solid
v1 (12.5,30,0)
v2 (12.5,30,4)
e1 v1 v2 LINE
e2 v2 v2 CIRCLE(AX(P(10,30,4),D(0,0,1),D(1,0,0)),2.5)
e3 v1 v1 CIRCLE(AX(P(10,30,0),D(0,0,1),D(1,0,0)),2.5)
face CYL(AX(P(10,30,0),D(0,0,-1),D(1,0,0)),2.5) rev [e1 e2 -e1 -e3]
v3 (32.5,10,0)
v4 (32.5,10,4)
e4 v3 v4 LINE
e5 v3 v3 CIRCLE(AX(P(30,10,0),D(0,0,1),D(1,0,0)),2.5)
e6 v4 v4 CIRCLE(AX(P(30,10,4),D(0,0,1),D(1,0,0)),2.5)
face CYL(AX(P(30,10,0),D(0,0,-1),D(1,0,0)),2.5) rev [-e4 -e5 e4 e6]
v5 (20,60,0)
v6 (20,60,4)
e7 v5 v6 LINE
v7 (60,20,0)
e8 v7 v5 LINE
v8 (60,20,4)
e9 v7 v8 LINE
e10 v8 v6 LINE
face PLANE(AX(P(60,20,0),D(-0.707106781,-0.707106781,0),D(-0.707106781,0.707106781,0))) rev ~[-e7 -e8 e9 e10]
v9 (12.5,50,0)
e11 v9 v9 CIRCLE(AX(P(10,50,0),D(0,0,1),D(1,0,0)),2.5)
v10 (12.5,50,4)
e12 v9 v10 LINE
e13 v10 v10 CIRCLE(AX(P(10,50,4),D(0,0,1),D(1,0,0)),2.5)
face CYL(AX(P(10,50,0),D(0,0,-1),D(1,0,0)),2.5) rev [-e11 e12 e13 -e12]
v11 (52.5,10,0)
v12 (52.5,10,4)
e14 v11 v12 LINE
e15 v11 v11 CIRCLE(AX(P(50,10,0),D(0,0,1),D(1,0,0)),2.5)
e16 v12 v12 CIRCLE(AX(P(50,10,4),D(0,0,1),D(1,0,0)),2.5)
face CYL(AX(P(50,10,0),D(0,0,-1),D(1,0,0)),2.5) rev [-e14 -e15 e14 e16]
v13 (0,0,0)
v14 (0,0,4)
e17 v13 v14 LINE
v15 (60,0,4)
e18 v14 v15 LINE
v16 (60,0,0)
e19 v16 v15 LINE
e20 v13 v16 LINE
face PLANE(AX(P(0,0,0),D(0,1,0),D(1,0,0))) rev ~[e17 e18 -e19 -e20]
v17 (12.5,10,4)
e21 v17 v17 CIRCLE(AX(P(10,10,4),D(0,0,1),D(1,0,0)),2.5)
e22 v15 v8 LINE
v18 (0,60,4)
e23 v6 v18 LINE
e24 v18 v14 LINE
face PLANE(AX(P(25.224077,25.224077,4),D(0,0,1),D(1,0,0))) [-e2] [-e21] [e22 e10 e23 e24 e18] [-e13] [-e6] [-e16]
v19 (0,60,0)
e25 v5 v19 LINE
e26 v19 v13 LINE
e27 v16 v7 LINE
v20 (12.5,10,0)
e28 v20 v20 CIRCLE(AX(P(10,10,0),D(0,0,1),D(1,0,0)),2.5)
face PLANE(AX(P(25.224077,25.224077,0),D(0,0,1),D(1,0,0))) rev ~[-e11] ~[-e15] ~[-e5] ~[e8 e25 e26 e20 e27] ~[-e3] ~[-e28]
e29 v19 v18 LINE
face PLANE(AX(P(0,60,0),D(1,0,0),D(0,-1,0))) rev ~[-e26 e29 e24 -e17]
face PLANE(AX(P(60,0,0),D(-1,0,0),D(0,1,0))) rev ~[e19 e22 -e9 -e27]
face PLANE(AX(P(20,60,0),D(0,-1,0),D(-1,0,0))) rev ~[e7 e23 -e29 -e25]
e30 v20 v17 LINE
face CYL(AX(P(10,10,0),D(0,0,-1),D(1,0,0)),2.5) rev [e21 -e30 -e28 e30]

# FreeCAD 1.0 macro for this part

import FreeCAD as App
import Part
import Sketcher
from FreeCAD import Vector
Q = App.Units.Quantity


def add_polygon(sketch, points):
    """Adds a closed chain of lines whose ends are joined by coincident constraints."""
    first, n = sketch.GeometryCount, len(points)
    for a, b in zip(points, points[1:] + points[:1]):
        sketch.addGeometry(Part.LineSegment(App.Vector(*a, 0), App.Vector(*b, 0)), False)
    for i in range(n):
        sketch.addConstraint(Sketcher.Constraint("Coincident", first + i, 2, first + (i + 1) % n, 1))

doc = App.newDocument("Part")
body = doc.addObject("PartDesign::Body", "Body")

sketch1 = body.newObject("Sketcher::SketchObject", "Sketch")
sketch1.AttachmentSupport = (doc.getObject("XY_Plane"), [""])
sketch1.MapMode = "FlatFace"
add_polygon(sketch1, [(0, 60), (0, 0), (60, 0), (60, 20), (20, 60)])
sketch1.addGeometry(Part.Circle(Vector(10, 10, 0), Vector(0, 0, 1), 2.5), False)
sketch1.addGeometry(Part.Circle(Vector(30, 10, 0), Vector(0, 0, 1), 2.5), False)
sketch1.addGeometry(Part.Circle(Vector(50, 10, 0), Vector(0, 0, 1), 2.5), False)
sketch1.addGeometry(Part.Circle(Vector(10, 30, 0), Vector(0, 0, 1), 2.5), False)
sketch1.addGeometry(Part.Circle(Vector(10, 50, 0), Vector(0, 0, 1), 2.5), False)
sketch1.addConstraint([
    Sketcher.Constraint("Vertical", 0),
    Sketcher.Constraint("Horizontal", 1),
    Sketcher.Constraint("Vertical", 2),
    Sketcher.Constraint("Horizontal", 4),
    Sketcher.Constraint("Coincident", 0, 2, -1, 1),
    Sketcher.Constraint("Equal", 5, 6),
    Sketcher.Constraint("Equal", 6, 7),
    Sketcher.Constraint("Equal", 7, 8),
    Sketcher.Constraint("Equal", 8, 9),
    Sketcher.Constraint("Horizontal", 5, 3, 6, 3),
    Sketcher.Constraint("Horizontal", 6, 3, 7, 3),
    Sketcher.Constraint("Vertical", 5, 3, 8, 3),
    Sketcher.Constraint("Vertical", 8, 3, 9, 3),
    Sketcher.Constraint("Equal", 1, 0),
    Sketcher.Constraint("Equal", 4, 2),
    Sketcher.Constraint("Diameter", 5, Q("5 mm")),
    Sketcher.Constraint("DistanceX", 1, 1, 1, 2, Q("60 mm")),
    Sketcher.Constraint("DistanceX", 4, 2, 4, 1, Q("20 mm")),
    Sketcher.Constraint("DistanceX", -1, 1, 5, 3, Q("10 mm")),
    Sketcher.Constraint("DistanceY", -1, 1, 5, 3, Q("10 mm")),
    Sketcher.Constraint("DistanceX", -1, 1, 6, 3, Q("30 mm")),
    Sketcher.Constraint("DistanceX", -1, 1, 7, 3, Q("50 mm")),
    Sketcher.Constraint("DistanceY", -1, 1, 8, 3, Q("30 mm")),
    Sketcher.Constraint("DistanceY", -1, 1, 9, 3, Q("50 mm")),
])
pad1 = body.newObject("PartDesign::Pad", "Pad")
pad1.Profile = sketch1
pad1.Length = 4

doc.recompute()
